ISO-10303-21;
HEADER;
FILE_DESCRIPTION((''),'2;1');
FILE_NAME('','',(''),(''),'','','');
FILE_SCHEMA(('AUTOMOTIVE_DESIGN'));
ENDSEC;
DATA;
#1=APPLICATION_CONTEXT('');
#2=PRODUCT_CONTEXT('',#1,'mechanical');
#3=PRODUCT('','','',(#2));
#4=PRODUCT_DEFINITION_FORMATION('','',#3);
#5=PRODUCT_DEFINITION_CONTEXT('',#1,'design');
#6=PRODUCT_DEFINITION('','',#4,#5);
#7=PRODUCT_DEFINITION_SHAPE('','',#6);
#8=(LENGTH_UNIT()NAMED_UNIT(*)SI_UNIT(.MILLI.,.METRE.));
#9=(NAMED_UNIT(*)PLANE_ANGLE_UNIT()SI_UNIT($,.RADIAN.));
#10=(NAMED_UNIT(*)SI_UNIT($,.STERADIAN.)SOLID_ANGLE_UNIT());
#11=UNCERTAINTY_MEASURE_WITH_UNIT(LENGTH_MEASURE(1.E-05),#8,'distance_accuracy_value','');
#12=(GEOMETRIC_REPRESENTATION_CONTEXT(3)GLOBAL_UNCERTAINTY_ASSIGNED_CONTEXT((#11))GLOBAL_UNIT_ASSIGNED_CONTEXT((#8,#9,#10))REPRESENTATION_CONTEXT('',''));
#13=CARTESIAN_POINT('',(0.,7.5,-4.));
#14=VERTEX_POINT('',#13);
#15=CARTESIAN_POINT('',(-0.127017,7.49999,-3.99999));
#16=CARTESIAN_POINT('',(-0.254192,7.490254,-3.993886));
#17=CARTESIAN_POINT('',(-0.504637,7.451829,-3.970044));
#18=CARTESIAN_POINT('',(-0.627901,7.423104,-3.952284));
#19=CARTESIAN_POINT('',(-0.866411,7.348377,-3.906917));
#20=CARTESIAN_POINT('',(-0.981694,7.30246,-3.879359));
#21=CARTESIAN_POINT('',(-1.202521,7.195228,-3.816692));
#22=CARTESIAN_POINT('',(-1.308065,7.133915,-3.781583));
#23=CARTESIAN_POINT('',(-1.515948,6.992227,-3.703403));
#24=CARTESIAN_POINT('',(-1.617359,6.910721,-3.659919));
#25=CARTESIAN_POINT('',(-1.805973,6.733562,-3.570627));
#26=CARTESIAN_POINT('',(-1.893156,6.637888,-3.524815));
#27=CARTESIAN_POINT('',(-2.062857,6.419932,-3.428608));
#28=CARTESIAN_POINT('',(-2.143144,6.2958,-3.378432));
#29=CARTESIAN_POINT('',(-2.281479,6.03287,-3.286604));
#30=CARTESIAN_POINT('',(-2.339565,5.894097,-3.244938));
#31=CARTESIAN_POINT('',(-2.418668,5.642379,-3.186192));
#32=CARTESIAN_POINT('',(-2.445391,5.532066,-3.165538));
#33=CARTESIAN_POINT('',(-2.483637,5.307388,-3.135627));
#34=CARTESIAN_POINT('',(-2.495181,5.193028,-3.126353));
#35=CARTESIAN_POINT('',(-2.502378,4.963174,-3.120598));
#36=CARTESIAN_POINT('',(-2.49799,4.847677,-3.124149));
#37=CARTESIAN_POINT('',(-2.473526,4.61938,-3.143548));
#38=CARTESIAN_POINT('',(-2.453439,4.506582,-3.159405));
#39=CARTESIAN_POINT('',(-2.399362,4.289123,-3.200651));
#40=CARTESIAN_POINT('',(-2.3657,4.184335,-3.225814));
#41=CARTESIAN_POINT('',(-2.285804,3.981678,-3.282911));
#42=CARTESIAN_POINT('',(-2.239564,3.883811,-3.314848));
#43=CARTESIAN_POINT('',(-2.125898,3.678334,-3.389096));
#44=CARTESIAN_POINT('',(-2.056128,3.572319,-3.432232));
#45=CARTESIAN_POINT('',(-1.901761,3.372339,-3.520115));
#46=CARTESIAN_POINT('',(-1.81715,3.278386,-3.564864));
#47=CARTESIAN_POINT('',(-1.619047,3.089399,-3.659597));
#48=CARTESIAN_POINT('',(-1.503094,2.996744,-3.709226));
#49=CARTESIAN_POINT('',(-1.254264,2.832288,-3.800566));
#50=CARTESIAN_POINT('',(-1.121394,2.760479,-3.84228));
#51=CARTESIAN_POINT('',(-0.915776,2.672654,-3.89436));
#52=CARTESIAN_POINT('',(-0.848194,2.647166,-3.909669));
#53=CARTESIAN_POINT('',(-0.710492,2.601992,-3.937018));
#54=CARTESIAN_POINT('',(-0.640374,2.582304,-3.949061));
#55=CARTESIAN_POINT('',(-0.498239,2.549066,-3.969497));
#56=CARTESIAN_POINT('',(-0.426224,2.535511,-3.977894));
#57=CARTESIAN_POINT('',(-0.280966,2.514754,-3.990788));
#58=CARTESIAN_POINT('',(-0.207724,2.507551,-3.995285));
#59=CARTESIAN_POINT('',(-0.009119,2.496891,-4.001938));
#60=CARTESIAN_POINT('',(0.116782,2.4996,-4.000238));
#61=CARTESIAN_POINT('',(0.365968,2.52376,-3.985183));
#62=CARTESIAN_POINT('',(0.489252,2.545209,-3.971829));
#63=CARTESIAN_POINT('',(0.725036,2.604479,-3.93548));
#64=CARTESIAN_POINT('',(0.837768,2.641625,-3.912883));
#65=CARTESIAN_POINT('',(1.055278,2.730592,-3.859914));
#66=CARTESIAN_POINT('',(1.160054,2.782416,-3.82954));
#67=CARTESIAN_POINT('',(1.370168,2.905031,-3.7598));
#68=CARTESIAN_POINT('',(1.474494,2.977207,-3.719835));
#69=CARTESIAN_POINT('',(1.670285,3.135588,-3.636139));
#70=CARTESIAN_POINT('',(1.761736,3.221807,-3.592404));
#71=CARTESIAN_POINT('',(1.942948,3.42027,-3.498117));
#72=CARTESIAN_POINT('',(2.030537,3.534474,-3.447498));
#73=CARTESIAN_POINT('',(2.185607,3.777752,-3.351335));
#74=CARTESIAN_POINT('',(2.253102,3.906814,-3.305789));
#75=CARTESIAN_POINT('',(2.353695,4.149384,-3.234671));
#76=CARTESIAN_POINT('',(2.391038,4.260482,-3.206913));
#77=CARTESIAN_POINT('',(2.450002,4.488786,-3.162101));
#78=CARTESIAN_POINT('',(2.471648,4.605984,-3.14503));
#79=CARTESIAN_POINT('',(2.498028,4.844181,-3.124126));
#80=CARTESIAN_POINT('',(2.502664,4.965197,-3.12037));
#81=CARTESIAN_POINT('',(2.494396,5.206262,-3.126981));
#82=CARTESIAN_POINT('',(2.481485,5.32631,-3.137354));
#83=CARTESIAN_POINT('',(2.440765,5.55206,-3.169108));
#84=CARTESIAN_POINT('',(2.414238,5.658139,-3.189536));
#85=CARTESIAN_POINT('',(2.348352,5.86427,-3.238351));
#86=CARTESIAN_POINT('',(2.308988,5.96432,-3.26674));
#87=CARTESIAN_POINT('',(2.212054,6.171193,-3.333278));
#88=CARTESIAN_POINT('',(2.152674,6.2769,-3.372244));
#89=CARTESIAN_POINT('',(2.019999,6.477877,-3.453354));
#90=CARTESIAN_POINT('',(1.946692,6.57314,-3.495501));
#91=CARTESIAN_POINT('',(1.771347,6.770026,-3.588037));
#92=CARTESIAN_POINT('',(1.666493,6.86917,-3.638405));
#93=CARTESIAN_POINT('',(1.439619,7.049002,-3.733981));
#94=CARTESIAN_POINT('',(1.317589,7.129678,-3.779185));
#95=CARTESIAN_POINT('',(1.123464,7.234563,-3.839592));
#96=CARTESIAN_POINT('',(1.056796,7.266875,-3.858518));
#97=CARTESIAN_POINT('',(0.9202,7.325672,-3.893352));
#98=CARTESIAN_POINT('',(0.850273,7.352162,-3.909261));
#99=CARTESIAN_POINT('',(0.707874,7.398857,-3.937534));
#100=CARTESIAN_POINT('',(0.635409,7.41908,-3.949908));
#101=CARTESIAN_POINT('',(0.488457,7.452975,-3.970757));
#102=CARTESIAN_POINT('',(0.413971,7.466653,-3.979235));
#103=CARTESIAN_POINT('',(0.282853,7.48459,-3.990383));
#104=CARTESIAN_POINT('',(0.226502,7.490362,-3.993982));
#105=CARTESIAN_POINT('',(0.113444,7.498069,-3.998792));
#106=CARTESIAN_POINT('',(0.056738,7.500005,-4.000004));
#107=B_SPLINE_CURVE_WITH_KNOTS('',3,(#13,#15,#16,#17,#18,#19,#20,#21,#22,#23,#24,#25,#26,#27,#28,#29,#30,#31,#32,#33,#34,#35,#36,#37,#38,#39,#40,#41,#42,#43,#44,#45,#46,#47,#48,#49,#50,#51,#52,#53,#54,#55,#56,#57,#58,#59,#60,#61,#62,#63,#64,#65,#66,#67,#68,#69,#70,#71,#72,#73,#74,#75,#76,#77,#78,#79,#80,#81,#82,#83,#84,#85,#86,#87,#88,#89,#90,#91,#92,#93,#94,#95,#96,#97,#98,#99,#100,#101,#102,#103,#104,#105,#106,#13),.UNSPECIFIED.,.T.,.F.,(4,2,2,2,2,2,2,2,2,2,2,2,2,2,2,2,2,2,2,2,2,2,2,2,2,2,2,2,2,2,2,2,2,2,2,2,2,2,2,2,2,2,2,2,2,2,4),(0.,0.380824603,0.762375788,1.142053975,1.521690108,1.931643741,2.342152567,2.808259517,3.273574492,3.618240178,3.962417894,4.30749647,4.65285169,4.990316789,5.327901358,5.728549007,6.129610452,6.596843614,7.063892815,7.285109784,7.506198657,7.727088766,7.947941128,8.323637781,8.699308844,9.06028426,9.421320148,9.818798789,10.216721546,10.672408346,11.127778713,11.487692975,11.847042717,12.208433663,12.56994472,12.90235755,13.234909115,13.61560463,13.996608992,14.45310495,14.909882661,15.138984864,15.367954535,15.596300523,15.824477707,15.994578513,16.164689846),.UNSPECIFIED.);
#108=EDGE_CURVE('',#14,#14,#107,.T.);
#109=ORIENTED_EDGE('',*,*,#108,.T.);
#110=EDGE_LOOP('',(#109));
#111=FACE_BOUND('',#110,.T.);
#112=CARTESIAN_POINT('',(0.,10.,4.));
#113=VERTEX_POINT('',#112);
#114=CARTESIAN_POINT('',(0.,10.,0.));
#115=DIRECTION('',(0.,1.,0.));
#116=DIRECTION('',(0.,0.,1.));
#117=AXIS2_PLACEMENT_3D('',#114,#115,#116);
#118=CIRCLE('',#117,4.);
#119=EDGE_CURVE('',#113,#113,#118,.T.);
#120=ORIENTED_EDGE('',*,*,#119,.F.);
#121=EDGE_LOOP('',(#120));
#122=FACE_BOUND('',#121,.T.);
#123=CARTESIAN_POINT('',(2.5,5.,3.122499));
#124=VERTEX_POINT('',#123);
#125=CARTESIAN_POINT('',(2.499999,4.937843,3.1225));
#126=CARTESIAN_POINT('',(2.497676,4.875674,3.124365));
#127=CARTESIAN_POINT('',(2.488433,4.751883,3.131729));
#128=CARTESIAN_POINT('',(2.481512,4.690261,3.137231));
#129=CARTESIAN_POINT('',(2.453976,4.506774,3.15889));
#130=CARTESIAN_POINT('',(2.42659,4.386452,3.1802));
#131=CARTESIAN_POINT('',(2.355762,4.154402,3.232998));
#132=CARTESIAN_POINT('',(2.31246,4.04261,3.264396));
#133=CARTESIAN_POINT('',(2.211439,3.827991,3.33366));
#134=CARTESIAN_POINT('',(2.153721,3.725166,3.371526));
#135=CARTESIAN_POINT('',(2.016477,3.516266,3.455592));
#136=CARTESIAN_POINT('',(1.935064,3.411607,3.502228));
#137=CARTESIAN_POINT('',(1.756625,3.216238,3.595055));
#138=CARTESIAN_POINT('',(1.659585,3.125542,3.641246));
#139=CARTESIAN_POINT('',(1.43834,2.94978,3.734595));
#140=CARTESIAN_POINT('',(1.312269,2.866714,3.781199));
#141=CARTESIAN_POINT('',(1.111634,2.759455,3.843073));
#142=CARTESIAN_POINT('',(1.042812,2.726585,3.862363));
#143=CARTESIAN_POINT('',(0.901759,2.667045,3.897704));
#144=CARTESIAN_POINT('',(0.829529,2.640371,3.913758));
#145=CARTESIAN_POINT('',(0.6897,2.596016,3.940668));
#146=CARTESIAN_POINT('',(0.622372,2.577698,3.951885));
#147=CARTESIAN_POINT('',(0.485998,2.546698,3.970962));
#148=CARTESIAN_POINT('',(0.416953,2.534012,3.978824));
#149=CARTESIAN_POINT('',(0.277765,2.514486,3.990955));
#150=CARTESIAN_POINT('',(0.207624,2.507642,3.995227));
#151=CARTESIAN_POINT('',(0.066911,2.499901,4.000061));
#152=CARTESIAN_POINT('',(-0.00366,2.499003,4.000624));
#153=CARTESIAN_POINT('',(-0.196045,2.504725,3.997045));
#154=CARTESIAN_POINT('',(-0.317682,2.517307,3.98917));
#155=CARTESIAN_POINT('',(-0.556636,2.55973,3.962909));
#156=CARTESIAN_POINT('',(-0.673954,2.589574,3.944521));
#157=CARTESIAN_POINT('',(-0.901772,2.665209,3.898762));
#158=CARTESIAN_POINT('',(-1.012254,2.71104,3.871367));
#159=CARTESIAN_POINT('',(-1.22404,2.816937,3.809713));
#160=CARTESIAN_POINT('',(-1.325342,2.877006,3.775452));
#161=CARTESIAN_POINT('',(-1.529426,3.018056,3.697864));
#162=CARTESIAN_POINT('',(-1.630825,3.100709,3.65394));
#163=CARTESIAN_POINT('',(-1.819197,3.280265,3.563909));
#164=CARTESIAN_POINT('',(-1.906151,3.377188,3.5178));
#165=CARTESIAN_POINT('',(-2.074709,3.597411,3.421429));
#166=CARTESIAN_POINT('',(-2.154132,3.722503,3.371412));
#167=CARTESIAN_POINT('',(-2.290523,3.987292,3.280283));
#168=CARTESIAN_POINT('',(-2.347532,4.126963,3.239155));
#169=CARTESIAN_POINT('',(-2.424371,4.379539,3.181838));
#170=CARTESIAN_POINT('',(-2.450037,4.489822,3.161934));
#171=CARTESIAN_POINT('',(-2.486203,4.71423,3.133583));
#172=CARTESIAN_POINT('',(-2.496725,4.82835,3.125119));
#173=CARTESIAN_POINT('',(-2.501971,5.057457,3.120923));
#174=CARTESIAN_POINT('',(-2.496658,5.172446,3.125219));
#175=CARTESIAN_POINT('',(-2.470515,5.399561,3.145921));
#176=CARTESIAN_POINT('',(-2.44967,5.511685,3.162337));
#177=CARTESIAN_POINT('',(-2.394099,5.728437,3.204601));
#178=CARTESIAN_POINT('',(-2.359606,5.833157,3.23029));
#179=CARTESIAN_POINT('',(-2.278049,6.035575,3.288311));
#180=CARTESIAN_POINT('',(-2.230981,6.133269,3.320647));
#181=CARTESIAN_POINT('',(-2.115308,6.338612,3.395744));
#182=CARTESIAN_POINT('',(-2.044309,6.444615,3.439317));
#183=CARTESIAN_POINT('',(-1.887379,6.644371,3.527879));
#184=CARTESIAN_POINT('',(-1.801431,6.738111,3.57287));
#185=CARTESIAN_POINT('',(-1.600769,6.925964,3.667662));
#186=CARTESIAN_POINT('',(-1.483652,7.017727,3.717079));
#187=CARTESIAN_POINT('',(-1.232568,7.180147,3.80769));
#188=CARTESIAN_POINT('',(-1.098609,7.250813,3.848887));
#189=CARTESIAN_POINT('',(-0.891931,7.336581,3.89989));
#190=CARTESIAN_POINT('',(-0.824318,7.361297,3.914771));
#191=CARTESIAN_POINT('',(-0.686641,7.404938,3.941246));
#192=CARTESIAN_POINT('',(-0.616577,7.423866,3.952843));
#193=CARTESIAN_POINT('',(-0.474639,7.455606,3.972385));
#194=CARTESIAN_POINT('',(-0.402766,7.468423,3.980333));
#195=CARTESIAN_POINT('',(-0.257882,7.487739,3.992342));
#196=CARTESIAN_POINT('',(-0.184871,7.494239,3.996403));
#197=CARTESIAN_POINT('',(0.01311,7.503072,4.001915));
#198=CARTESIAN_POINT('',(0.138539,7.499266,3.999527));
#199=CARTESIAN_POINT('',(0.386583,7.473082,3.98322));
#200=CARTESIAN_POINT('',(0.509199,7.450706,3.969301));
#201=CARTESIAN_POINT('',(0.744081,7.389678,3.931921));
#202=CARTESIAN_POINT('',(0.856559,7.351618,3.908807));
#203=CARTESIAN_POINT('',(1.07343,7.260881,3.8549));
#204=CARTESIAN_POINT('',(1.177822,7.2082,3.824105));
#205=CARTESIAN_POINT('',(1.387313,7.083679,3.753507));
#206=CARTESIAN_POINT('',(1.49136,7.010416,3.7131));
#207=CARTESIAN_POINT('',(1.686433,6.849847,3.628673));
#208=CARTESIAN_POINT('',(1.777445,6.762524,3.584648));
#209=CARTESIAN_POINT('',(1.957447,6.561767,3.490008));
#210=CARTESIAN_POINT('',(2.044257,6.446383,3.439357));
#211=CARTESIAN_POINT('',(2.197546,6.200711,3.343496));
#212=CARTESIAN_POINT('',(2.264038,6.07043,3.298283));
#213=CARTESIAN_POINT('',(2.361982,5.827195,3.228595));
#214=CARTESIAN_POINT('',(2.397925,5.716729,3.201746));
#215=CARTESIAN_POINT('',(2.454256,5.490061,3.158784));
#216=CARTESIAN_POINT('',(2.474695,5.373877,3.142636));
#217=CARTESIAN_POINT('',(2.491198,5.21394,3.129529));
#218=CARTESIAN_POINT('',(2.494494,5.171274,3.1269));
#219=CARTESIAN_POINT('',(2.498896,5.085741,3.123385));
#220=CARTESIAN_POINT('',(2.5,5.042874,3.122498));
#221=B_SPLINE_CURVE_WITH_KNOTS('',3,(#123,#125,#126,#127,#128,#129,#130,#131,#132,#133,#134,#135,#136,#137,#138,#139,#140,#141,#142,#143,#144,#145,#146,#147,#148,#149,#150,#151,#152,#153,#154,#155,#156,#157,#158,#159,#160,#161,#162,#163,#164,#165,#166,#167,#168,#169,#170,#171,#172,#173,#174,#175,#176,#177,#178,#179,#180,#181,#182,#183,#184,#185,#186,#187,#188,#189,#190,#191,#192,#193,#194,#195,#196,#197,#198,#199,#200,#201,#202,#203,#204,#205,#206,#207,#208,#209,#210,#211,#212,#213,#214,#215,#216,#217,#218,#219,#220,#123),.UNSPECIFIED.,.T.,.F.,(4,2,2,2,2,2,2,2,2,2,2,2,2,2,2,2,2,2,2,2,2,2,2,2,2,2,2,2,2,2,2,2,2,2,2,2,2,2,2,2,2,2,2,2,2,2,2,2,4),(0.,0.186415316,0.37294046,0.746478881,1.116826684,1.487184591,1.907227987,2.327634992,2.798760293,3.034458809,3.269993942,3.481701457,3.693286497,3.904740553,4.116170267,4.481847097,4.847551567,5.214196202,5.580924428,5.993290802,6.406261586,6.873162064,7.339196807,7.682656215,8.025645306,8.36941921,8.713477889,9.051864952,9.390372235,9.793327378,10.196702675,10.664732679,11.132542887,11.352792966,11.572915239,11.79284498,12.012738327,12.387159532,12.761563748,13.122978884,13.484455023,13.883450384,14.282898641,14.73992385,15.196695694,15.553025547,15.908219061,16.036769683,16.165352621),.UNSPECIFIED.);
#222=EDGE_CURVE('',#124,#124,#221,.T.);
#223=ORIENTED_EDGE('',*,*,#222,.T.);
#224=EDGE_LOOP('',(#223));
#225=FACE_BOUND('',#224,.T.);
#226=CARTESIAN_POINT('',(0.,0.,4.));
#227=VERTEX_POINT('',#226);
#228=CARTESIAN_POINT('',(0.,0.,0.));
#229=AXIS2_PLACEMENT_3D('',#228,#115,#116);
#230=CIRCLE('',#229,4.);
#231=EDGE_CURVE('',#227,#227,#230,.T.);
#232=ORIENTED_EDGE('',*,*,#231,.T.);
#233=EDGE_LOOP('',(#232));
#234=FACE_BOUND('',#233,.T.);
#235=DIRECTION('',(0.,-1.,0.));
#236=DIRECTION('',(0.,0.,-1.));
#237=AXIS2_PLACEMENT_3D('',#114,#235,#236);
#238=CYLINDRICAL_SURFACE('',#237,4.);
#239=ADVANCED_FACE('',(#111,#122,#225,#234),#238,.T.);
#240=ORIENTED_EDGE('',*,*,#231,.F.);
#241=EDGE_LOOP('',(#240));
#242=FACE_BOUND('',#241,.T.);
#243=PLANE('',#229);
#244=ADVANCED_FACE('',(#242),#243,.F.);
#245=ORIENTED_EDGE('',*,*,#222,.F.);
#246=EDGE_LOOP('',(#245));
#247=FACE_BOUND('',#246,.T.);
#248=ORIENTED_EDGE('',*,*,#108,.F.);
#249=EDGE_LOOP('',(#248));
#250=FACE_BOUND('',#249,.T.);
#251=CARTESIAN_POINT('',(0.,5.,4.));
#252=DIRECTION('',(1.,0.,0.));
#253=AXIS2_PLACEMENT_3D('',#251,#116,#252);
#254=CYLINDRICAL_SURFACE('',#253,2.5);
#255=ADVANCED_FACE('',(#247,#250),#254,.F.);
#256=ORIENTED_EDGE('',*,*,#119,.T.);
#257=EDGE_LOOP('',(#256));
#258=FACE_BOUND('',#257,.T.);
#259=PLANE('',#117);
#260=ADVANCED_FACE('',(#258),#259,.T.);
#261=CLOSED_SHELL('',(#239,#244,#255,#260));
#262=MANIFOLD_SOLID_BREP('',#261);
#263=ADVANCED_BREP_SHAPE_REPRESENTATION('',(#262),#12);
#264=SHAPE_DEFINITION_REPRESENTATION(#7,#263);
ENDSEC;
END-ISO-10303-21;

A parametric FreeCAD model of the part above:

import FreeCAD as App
import Part
import Sketcher

V = App.Vector

doc = App.newDocument("Part")
body = doc.addObject("PartDesign::Body", "Body")

# Sketch on XZ plane
sketch1 = body.newObject("Sketcher::SketchObject", "Sketch")
sketch1.AttachmentSupport = (doc.getObject("XZ_Plane"), [""])
sketch1.MapMode = "FlatFace"
sketch1.addGeometry(Part.Circle(V(0, 0, 0), V(0, 0, 1), 4), False)
sketch1.addConstraint([
    Sketcher.Constraint("Coincident", 0, 3, -1, 1),
    Sketcher.Constraint("Diameter", 0, 8.0),
])
pad1 = body.newObject("PartDesign::Pad", "Pad")
pad1.Profile = sketch1
pad1.Length = 10
pad1.Reversed = True

# Sketch on XY plane
sketch2 = body.newObject("Sketcher::SketchObject", "Sketch001")
sketch2.AttachmentSupport = (doc.getObject("XY_Plane"), [""])
sketch2.MapMode = "FlatFace"
sketch2.AttachmentOffset = App.Placement(V(0, 0, 4), App.Rotation())
sketch2.addGeometry(Part.Circle(V(0, 5, 0), V(0, 0, 1), 2.5), False)
sketch2.addConstraint([
    Sketcher.Constraint("PointOnObject", 0, 3, -2),
    Sketcher.Constraint("Diameter", 0, 5.0),
    Sketcher.Constraint("DistanceY", -1, 1, 0, 3, 5.0),
])
doc.recompute()
hole = body.newObject("PartDesign::Hole", "Hole")
hole.Profile = sketch2
hole.ThreadType = "None"
hole.Diameter = 5
hole.DepthType = "ThroughAll"

doc.recompute()
